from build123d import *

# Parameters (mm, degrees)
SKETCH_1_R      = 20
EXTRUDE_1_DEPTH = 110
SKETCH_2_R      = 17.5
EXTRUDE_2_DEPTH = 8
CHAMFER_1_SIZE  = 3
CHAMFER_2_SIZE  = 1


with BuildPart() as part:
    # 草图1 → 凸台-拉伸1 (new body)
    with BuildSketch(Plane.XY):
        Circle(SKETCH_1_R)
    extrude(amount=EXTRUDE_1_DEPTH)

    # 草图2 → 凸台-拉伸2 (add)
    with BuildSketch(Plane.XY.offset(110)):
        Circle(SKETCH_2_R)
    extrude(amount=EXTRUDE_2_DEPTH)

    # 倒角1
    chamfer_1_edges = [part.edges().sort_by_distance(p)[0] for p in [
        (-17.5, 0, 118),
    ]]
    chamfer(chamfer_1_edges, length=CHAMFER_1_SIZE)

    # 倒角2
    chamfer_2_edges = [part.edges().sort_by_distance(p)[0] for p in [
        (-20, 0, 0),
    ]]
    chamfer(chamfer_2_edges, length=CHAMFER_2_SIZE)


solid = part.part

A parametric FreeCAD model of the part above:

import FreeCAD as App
import Part
import Sketcher
from FreeCAD import Vector
Q = App.Units.Quantity


def edges_at(feature, points):
    """Names of the edges that pass closest to the given points."""
    edges = feature.Shape.Edges
    near = lambda p: min(range(len(edges)), key=lambda i: edges[i].distToShape(Part.Vertex(*p))[0])
    return sorted({f"Edge{near(p) + 1}" for p in points})

doc = App.newDocument("Part")
body = doc.addObject("PartDesign::Body", "Body")

# Sketch on XY plane
sketch1 = doc.addObject("Sketcher::SketchObject", "Sketch")
body.addObject(sketch1)
sketch1.AttachmentSupport = (doc.XY_Plane, [""])
sketch1.MapMode = "FlatFace"
sketch1.addGeometry(Part.Circle(Vector(0, 0, 0), Vector(0, 0, 1), 20), False)
sketch1.addConstraint(Sketcher.Constraint("Coincident", 0, 3, -1, 1))
sketch1.addConstraint(Sketcher.Constraint("Diameter", 0, Q("40 mm")))
pad1 = doc.addObject("PartDesign::Pad", "Pad")
body.addObject(pad1)
pad1.Profile = sketch1
pad1.Length = 110

# Sketch on XY plane
sketch2 = doc.addObject("Sketcher::SketchObject", "Sketch001")
body.addObject(sketch2)
sketch2.AttachmentSupport = (doc.XY_Plane, [""])
sketch2.MapMode = "FlatFace"
sketch2.AttachmentOffset = App.Placement(Vector(0, 0, 110), App.Rotation())
sketch2.addGeometry(Part.Circle(Vector(0, 0, 0), Vector(0, 0, 1), 18), False)
sketch2.addConstraint(Sketcher.Constraint("Coincident", 0, 3, -1, 1))
sketch2.addConstraint(Sketcher.Constraint("Diameter", 0, Q("35 mm")))
pad2 = doc.addObject("PartDesign::Pad", "Pad001")
body.addObject(pad2)
pad2.Profile = sketch2
pad2.Length = 8
doc.recompute()

chamfer = doc.addObject("PartDesign::Chamfer", "Chamfer")
body.addObject(chamfer)
chamfer.Base = (pad2, edges_at(pad2, [(-17.5, 0, 118)]))
chamfer.Size = 3
doc.recompute()

chamfer2 = doc.addObject("PartDesign::Chamfer", "Chamfer001")
body.addObject(chamfer2)
chamfer2.Base = (chamfer, edges_at(chamfer, [(-20, 0, 0)]))
chamfer2.Size = 1

doc.recompute()
